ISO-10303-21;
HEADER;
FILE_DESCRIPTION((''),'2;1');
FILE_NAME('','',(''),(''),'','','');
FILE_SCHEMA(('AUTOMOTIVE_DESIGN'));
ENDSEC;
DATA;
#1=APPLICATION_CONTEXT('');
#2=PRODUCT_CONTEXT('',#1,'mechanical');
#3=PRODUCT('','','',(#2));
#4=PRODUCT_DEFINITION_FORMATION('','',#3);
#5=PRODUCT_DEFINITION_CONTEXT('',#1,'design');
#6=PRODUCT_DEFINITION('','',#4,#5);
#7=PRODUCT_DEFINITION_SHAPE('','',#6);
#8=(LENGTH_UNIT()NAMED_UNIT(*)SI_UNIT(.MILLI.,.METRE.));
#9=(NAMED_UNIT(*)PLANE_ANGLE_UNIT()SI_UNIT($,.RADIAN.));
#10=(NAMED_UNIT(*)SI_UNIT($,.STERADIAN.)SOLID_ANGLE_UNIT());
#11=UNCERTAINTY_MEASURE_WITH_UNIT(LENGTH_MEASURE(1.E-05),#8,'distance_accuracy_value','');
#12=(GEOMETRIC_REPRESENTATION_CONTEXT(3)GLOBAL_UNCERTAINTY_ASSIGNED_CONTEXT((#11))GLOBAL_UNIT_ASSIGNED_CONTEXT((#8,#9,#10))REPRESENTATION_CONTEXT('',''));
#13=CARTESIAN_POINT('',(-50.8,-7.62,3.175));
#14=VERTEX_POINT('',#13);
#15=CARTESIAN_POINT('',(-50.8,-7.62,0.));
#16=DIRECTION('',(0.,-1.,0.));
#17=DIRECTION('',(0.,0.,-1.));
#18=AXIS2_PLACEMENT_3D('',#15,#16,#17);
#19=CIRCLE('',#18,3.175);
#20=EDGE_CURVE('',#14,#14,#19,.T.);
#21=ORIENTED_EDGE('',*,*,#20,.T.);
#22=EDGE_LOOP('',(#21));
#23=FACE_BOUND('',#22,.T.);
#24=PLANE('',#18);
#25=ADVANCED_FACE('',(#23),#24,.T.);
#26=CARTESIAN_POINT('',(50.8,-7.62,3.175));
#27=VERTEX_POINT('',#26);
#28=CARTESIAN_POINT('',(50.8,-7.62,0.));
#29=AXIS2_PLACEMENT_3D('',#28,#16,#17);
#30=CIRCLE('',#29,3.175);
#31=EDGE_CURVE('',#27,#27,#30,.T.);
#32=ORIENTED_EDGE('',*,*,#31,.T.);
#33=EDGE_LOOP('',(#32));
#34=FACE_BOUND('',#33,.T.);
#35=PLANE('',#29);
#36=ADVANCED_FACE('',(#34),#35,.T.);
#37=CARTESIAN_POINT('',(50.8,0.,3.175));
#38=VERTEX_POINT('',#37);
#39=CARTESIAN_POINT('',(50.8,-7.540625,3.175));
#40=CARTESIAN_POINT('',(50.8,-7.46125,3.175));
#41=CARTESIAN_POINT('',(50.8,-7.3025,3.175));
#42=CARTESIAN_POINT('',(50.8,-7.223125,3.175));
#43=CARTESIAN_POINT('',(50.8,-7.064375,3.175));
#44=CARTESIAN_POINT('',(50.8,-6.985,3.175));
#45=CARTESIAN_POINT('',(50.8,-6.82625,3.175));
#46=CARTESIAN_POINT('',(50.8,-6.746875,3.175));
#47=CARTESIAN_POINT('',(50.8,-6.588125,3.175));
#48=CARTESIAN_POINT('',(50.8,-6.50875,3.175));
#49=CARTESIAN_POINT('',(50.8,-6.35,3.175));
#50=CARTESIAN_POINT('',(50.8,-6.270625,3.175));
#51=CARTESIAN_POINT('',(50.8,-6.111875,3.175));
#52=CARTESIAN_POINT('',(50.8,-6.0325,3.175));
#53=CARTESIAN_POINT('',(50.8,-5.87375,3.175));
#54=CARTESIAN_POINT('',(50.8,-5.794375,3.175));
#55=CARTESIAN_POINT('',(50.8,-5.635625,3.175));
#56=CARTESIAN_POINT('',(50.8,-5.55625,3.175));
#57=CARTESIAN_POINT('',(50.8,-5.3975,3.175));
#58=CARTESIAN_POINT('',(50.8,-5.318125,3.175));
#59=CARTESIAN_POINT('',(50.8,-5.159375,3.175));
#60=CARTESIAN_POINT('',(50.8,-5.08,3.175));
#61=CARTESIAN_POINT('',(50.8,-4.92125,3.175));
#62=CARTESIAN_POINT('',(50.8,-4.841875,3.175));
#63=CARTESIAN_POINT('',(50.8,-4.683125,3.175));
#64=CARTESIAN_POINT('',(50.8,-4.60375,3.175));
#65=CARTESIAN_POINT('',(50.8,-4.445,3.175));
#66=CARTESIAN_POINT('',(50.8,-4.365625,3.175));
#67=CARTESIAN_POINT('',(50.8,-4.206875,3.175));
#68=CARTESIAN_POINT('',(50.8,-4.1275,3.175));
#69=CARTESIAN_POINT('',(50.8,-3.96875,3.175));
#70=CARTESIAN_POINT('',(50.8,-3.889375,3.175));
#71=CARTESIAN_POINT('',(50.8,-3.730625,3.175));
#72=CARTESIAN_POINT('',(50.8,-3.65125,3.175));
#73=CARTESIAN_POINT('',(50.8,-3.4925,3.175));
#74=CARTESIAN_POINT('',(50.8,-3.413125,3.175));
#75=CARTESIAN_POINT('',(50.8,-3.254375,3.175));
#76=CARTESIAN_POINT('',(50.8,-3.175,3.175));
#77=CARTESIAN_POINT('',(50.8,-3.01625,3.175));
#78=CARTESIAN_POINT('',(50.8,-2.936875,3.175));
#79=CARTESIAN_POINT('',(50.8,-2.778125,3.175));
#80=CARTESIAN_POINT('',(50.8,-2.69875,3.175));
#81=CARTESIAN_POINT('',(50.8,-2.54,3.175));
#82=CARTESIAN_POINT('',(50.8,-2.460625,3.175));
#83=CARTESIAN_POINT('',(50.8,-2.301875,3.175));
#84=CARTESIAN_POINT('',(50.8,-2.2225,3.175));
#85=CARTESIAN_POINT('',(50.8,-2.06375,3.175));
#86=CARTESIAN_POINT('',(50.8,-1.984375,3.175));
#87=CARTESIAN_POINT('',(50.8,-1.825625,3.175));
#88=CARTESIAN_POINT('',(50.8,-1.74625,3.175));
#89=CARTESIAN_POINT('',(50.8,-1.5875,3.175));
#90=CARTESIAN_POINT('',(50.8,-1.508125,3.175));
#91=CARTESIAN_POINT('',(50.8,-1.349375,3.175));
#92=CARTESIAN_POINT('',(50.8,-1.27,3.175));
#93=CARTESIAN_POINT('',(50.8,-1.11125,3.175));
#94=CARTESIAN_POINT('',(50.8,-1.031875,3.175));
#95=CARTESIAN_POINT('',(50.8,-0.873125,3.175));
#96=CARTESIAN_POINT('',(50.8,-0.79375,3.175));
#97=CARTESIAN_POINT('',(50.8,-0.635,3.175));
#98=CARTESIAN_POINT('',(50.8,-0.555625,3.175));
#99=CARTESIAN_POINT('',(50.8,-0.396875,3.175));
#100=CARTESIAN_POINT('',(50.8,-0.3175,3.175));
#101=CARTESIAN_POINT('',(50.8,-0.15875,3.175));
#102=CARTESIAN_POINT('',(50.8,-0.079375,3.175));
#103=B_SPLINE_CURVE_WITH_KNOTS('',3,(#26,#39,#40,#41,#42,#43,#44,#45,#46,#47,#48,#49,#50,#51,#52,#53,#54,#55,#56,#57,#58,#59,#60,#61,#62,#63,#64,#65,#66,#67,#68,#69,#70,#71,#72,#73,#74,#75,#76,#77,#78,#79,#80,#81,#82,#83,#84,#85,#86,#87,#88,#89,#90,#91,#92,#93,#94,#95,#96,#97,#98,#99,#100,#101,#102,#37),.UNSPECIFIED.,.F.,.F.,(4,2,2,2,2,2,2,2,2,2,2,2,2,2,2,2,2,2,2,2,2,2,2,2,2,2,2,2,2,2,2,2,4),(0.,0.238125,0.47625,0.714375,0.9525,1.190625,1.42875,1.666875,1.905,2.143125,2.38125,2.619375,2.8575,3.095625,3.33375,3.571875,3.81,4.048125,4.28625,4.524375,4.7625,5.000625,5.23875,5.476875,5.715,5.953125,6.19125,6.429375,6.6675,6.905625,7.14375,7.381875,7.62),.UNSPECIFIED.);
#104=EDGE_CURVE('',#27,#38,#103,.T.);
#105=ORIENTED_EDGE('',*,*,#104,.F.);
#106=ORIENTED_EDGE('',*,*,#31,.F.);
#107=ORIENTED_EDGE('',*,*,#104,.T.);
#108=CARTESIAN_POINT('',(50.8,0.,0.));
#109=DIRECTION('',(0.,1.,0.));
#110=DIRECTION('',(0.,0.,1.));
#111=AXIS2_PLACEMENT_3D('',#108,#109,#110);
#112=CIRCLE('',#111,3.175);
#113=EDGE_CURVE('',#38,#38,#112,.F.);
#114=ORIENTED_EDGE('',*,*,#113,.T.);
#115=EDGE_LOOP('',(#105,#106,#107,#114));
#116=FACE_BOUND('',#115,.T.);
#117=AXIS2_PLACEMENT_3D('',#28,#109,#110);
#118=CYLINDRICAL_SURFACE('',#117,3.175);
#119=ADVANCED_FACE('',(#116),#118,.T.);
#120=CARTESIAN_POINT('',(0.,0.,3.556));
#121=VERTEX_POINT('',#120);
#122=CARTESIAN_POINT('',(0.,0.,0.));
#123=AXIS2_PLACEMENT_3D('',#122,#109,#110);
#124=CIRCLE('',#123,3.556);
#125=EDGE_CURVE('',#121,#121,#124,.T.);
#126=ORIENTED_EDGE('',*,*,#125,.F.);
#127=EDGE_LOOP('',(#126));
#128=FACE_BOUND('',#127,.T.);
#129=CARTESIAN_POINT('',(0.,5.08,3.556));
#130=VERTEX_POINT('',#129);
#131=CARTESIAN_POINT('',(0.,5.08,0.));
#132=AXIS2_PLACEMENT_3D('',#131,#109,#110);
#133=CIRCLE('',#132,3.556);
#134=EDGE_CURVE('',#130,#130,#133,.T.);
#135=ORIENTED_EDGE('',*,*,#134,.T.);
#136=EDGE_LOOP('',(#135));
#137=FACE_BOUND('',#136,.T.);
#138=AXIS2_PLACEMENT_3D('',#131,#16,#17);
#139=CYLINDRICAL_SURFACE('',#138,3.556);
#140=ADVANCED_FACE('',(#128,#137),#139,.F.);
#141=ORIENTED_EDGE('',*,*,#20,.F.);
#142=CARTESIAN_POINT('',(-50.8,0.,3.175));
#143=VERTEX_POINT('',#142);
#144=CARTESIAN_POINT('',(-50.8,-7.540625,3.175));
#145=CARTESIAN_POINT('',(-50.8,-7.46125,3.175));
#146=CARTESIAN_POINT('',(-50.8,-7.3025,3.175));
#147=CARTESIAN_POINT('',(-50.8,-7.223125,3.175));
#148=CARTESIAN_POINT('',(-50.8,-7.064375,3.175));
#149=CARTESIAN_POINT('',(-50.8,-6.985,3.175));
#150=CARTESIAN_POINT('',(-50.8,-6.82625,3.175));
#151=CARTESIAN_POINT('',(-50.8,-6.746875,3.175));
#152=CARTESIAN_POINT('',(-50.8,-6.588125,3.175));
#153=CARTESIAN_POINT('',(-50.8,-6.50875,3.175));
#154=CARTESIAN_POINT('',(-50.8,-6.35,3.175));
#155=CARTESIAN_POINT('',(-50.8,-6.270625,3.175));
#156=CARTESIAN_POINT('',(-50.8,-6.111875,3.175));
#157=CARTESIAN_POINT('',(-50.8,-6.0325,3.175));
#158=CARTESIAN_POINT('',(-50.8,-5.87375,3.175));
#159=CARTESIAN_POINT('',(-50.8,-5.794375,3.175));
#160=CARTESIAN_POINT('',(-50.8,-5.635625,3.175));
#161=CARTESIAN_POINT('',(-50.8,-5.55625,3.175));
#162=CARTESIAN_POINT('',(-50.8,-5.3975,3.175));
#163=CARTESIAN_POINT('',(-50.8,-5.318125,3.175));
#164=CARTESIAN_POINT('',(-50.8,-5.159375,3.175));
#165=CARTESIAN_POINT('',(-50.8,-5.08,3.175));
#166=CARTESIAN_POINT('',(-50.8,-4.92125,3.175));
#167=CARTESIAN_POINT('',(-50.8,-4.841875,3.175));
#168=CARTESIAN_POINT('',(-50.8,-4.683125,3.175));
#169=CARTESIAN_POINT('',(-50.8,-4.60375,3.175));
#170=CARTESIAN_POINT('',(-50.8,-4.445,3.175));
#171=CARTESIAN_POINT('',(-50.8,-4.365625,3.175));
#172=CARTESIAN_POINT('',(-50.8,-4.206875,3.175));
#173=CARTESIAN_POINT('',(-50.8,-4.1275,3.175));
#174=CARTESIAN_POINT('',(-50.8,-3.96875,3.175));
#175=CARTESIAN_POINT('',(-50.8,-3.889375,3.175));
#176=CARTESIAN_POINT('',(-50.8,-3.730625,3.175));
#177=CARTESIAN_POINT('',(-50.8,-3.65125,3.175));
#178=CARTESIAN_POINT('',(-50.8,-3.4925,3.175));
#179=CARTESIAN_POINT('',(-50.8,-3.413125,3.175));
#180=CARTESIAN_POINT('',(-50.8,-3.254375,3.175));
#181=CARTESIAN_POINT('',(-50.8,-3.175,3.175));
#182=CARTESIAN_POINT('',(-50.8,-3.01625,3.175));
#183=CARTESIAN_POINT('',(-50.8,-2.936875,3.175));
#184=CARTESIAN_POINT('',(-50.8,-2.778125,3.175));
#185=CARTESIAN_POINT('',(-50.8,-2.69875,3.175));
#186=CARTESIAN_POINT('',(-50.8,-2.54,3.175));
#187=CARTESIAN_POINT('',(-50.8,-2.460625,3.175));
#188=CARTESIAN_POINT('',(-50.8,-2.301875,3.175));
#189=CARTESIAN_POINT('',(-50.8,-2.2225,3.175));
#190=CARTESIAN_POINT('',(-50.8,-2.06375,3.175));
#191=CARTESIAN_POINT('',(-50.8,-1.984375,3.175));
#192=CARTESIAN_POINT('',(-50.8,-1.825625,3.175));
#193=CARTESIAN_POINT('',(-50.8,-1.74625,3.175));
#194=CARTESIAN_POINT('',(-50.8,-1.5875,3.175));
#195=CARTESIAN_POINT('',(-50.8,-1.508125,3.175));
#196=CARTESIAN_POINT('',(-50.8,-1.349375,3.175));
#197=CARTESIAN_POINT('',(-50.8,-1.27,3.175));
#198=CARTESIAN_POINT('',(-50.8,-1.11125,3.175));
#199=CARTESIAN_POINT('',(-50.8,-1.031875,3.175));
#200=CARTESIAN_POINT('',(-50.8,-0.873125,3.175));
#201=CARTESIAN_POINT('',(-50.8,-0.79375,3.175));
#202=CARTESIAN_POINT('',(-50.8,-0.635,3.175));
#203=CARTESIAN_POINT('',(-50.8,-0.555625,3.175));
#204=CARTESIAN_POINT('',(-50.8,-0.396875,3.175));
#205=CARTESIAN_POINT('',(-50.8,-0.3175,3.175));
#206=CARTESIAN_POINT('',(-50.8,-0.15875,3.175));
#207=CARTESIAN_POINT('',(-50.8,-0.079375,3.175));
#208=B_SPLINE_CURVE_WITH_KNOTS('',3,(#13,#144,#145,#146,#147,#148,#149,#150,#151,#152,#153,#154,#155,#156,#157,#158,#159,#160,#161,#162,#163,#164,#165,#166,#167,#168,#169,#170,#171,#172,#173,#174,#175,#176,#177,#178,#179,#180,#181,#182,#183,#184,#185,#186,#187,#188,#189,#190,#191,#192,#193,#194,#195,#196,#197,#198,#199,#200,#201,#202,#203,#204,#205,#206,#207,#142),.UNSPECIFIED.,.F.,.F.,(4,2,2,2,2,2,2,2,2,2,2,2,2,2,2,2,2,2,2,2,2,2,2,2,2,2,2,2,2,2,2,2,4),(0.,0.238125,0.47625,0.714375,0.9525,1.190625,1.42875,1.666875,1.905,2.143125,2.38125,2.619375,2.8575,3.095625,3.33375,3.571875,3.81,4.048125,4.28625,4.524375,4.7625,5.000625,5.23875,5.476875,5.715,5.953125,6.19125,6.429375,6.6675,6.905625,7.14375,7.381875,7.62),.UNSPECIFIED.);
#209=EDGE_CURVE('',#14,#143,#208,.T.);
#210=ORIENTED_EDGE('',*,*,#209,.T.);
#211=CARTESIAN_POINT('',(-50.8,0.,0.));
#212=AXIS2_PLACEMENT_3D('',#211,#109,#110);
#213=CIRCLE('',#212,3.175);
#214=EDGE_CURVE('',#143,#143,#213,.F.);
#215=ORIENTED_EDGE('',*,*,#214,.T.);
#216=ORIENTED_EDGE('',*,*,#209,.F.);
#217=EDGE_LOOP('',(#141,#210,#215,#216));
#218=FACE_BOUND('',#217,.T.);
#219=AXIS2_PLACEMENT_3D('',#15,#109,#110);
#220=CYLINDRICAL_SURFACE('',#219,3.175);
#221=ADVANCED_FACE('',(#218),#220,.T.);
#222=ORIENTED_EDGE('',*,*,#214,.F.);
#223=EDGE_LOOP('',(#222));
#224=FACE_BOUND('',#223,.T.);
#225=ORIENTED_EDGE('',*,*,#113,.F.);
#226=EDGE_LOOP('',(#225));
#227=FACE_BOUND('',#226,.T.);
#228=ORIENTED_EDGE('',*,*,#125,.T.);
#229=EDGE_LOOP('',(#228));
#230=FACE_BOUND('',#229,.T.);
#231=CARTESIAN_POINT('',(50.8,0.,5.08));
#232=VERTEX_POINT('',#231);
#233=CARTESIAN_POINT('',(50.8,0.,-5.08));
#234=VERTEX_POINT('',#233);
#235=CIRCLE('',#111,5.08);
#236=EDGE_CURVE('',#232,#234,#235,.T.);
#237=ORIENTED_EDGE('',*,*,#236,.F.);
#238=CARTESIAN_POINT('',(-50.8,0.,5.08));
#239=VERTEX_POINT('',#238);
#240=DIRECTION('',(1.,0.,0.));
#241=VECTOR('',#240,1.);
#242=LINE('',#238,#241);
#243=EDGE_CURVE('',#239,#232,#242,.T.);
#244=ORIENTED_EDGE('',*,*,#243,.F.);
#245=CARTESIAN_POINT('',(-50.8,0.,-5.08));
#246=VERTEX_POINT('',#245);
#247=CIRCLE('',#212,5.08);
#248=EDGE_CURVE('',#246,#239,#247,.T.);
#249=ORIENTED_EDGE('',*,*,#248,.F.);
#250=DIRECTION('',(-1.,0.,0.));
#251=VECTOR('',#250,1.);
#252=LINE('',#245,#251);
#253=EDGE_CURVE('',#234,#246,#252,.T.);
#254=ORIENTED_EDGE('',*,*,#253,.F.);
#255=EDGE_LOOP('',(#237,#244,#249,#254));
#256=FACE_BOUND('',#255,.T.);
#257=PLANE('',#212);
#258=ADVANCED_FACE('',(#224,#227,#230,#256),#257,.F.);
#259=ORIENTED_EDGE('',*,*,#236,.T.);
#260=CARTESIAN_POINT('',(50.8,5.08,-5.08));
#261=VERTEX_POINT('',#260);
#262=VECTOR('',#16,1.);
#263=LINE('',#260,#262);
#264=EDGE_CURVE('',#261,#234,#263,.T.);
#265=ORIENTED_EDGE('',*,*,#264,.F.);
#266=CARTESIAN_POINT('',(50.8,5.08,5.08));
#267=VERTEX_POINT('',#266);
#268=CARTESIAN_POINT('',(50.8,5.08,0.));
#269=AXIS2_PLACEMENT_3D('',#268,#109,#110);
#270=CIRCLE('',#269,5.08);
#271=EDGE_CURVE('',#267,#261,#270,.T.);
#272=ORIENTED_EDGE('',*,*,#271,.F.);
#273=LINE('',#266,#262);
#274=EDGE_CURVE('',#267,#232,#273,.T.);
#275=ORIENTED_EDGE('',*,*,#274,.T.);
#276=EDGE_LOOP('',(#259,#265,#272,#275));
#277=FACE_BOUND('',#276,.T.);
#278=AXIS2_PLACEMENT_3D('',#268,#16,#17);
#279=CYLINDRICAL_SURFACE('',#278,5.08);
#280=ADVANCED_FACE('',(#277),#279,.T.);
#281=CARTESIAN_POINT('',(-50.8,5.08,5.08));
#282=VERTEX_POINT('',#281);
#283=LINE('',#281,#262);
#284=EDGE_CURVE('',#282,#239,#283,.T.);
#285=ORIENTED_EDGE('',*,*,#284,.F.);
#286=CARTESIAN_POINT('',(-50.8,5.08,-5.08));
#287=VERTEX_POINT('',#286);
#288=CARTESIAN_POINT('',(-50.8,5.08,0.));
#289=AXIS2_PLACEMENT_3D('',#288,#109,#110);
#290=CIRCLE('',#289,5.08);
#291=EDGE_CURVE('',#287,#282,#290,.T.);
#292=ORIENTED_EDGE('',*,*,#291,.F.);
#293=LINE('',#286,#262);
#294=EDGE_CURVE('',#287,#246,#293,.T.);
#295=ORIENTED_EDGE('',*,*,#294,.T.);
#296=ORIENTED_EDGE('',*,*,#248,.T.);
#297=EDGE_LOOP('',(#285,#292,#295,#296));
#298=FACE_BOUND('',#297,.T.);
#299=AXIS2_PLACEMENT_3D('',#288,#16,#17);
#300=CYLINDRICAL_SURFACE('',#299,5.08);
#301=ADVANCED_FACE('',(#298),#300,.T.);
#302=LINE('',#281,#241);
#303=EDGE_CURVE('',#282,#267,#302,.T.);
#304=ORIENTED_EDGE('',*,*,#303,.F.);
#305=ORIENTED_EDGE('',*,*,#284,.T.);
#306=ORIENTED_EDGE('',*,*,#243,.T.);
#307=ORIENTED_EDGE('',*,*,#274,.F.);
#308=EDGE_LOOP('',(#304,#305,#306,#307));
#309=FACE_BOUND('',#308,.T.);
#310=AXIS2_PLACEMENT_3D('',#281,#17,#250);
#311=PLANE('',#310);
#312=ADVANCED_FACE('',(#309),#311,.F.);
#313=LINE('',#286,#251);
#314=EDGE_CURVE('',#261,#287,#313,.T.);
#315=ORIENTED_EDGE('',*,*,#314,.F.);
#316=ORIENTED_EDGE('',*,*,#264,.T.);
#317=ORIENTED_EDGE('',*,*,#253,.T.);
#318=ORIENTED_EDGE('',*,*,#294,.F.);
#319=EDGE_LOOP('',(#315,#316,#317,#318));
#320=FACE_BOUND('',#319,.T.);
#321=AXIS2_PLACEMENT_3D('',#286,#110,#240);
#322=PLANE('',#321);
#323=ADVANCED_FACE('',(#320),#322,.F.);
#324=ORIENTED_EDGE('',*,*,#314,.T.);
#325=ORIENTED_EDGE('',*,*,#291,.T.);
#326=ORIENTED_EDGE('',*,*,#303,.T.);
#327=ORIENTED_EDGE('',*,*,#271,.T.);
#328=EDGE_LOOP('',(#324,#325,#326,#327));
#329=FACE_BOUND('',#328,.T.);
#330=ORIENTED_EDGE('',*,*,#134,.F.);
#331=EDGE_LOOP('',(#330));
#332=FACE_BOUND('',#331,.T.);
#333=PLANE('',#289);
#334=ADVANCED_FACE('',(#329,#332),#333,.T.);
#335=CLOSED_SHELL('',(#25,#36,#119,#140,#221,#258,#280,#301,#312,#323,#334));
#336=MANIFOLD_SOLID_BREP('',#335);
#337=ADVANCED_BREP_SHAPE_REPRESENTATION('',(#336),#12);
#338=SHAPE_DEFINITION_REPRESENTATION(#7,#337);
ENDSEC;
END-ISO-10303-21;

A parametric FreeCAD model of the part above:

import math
import FreeCAD as App
import Part
import Sketcher
from FreeCAD import Vector
Q = App.Units.Quantity

doc = App.newDocument("Part")
body = doc.addObject("PartDesign::Body", "Body")

sketch1 = body.newObject("Sketcher::SketchObject", "Sketch")
sketch1.AttachmentSupport = (doc.getObject("XZ_Plane"), [""])
sketch1.MapMode = "FlatFace"
sketch1.addGeometry(Part.LineSegment(Vector(-51, 5, 0), Vector(51, 5, 0)), False)
sketch1.addGeometry(Part.ArcOfCircle(Part.Circle(Vector(51, 0, 0), Vector(0, 0, 1), 5), math.radians(-90), math.radians(90)), False)
sketch1.addGeometry(Part.LineSegment(Vector(51, -5, 0), Vector(-51, -5, 0)), False)
sketch1.addGeometry(Part.ArcOfCircle(Part.Circle(Vector(-51, 0, 0), Vector(0, 0, 1), 5), math.radians(90), math.radians(270)), False)
sketch1.addConstraint(Sketcher.Constraint("Tangent", 0, 2, 1, 2))
sketch1.addConstraint(Sketcher.Constraint("Tangent", 1, 1, 2, 1))
sketch1.addConstraint(Sketcher.Constraint("Tangent", 2, 2, 3, 2))
sketch1.addConstraint(Sketcher.Constraint("Tangent", 3, 1, 0, 1))
sketch1.addConstraint(Sketcher.Constraint("Horizontal", 0))
sketch1.addConstraint(Sketcher.Constraint("Horizontal", 2))
sketch1.addConstraint(Sketcher.Constraint("Symmetric", 1, 3, 3, 3, -1, 1))
sketch1.addConstraint(Sketcher.Constraint("Radius", 1, Q("0.2 in")))
sketch1.addConstraint(Sketcher.Constraint("DistanceX", 0, 1, 0, 2, Q("4 in")))
pad1 = body.newObject("PartDesign::Pad", "Pad")
pad1.Profile = sketch1
pad1.Length = Q("0.2 in")
pad1.Reversed = True

sketch2 = body.newObject("Sketcher::SketchObject", "Sketch001")
sketch2.AttachmentSupport = (doc.getObject("XZ_Plane"), [""])
sketch2.MapMode = "FlatFace"
sketch2.addGeometry(Part.Circle(Vector(-50.8, 0, 0), Vector(0, 0, 1), 3.2), False)
sketch2.addGeometry(Part.Circle(Vector(50.8, 0, 0), Vector(0, 0, 1), 3.2), False)
sketch2.addConstraint(Sketcher.Constraint("Equal", 0, 1))
sketch2.addConstraint(Sketcher.Constraint("Symmetric", 0, 3, 1, 3, -1, 1))
sketch2.addConstraint(Sketcher.Constraint("PointOnObject", 0, 3, -1))
sketch2.addConstraint(Sketcher.Constraint("Diameter", 0, Q("0.25 in")))
sketch2.addConstraint(Sketcher.Constraint("DistanceX", 0, 3, -1, 1, Q("2 in")))
pad2 = body.newObject("PartDesign::Pad", "Pad001")
pad2.Profile = sketch2
pad2.Length = Q("0.3 in")

sketch3 = body.newObject("Sketcher::SketchObject", "Sketch002")
sketch3.AttachmentSupport = (doc.getObject("XZ_Plane"), [""])
sketch3.MapMode = "FlatFace"
sketch3.addGeometry(Part.Circle(Vector(0, 0, 0), Vector(0, 0, 1), 3.6), False)
sketch3.addConstraint(Sketcher.Constraint("Coincident", 0, 3, -1, 1))
sketch3.addConstraint(Sketcher.Constraint("Diameter", 0, Q("0.28 in")))
pocket1 = body.newObject("PartDesign::Pocket", "Pocket")
pocket1.Profile = sketch3
pocket1.Length = Q("0.2 in")

doc.recompute()
